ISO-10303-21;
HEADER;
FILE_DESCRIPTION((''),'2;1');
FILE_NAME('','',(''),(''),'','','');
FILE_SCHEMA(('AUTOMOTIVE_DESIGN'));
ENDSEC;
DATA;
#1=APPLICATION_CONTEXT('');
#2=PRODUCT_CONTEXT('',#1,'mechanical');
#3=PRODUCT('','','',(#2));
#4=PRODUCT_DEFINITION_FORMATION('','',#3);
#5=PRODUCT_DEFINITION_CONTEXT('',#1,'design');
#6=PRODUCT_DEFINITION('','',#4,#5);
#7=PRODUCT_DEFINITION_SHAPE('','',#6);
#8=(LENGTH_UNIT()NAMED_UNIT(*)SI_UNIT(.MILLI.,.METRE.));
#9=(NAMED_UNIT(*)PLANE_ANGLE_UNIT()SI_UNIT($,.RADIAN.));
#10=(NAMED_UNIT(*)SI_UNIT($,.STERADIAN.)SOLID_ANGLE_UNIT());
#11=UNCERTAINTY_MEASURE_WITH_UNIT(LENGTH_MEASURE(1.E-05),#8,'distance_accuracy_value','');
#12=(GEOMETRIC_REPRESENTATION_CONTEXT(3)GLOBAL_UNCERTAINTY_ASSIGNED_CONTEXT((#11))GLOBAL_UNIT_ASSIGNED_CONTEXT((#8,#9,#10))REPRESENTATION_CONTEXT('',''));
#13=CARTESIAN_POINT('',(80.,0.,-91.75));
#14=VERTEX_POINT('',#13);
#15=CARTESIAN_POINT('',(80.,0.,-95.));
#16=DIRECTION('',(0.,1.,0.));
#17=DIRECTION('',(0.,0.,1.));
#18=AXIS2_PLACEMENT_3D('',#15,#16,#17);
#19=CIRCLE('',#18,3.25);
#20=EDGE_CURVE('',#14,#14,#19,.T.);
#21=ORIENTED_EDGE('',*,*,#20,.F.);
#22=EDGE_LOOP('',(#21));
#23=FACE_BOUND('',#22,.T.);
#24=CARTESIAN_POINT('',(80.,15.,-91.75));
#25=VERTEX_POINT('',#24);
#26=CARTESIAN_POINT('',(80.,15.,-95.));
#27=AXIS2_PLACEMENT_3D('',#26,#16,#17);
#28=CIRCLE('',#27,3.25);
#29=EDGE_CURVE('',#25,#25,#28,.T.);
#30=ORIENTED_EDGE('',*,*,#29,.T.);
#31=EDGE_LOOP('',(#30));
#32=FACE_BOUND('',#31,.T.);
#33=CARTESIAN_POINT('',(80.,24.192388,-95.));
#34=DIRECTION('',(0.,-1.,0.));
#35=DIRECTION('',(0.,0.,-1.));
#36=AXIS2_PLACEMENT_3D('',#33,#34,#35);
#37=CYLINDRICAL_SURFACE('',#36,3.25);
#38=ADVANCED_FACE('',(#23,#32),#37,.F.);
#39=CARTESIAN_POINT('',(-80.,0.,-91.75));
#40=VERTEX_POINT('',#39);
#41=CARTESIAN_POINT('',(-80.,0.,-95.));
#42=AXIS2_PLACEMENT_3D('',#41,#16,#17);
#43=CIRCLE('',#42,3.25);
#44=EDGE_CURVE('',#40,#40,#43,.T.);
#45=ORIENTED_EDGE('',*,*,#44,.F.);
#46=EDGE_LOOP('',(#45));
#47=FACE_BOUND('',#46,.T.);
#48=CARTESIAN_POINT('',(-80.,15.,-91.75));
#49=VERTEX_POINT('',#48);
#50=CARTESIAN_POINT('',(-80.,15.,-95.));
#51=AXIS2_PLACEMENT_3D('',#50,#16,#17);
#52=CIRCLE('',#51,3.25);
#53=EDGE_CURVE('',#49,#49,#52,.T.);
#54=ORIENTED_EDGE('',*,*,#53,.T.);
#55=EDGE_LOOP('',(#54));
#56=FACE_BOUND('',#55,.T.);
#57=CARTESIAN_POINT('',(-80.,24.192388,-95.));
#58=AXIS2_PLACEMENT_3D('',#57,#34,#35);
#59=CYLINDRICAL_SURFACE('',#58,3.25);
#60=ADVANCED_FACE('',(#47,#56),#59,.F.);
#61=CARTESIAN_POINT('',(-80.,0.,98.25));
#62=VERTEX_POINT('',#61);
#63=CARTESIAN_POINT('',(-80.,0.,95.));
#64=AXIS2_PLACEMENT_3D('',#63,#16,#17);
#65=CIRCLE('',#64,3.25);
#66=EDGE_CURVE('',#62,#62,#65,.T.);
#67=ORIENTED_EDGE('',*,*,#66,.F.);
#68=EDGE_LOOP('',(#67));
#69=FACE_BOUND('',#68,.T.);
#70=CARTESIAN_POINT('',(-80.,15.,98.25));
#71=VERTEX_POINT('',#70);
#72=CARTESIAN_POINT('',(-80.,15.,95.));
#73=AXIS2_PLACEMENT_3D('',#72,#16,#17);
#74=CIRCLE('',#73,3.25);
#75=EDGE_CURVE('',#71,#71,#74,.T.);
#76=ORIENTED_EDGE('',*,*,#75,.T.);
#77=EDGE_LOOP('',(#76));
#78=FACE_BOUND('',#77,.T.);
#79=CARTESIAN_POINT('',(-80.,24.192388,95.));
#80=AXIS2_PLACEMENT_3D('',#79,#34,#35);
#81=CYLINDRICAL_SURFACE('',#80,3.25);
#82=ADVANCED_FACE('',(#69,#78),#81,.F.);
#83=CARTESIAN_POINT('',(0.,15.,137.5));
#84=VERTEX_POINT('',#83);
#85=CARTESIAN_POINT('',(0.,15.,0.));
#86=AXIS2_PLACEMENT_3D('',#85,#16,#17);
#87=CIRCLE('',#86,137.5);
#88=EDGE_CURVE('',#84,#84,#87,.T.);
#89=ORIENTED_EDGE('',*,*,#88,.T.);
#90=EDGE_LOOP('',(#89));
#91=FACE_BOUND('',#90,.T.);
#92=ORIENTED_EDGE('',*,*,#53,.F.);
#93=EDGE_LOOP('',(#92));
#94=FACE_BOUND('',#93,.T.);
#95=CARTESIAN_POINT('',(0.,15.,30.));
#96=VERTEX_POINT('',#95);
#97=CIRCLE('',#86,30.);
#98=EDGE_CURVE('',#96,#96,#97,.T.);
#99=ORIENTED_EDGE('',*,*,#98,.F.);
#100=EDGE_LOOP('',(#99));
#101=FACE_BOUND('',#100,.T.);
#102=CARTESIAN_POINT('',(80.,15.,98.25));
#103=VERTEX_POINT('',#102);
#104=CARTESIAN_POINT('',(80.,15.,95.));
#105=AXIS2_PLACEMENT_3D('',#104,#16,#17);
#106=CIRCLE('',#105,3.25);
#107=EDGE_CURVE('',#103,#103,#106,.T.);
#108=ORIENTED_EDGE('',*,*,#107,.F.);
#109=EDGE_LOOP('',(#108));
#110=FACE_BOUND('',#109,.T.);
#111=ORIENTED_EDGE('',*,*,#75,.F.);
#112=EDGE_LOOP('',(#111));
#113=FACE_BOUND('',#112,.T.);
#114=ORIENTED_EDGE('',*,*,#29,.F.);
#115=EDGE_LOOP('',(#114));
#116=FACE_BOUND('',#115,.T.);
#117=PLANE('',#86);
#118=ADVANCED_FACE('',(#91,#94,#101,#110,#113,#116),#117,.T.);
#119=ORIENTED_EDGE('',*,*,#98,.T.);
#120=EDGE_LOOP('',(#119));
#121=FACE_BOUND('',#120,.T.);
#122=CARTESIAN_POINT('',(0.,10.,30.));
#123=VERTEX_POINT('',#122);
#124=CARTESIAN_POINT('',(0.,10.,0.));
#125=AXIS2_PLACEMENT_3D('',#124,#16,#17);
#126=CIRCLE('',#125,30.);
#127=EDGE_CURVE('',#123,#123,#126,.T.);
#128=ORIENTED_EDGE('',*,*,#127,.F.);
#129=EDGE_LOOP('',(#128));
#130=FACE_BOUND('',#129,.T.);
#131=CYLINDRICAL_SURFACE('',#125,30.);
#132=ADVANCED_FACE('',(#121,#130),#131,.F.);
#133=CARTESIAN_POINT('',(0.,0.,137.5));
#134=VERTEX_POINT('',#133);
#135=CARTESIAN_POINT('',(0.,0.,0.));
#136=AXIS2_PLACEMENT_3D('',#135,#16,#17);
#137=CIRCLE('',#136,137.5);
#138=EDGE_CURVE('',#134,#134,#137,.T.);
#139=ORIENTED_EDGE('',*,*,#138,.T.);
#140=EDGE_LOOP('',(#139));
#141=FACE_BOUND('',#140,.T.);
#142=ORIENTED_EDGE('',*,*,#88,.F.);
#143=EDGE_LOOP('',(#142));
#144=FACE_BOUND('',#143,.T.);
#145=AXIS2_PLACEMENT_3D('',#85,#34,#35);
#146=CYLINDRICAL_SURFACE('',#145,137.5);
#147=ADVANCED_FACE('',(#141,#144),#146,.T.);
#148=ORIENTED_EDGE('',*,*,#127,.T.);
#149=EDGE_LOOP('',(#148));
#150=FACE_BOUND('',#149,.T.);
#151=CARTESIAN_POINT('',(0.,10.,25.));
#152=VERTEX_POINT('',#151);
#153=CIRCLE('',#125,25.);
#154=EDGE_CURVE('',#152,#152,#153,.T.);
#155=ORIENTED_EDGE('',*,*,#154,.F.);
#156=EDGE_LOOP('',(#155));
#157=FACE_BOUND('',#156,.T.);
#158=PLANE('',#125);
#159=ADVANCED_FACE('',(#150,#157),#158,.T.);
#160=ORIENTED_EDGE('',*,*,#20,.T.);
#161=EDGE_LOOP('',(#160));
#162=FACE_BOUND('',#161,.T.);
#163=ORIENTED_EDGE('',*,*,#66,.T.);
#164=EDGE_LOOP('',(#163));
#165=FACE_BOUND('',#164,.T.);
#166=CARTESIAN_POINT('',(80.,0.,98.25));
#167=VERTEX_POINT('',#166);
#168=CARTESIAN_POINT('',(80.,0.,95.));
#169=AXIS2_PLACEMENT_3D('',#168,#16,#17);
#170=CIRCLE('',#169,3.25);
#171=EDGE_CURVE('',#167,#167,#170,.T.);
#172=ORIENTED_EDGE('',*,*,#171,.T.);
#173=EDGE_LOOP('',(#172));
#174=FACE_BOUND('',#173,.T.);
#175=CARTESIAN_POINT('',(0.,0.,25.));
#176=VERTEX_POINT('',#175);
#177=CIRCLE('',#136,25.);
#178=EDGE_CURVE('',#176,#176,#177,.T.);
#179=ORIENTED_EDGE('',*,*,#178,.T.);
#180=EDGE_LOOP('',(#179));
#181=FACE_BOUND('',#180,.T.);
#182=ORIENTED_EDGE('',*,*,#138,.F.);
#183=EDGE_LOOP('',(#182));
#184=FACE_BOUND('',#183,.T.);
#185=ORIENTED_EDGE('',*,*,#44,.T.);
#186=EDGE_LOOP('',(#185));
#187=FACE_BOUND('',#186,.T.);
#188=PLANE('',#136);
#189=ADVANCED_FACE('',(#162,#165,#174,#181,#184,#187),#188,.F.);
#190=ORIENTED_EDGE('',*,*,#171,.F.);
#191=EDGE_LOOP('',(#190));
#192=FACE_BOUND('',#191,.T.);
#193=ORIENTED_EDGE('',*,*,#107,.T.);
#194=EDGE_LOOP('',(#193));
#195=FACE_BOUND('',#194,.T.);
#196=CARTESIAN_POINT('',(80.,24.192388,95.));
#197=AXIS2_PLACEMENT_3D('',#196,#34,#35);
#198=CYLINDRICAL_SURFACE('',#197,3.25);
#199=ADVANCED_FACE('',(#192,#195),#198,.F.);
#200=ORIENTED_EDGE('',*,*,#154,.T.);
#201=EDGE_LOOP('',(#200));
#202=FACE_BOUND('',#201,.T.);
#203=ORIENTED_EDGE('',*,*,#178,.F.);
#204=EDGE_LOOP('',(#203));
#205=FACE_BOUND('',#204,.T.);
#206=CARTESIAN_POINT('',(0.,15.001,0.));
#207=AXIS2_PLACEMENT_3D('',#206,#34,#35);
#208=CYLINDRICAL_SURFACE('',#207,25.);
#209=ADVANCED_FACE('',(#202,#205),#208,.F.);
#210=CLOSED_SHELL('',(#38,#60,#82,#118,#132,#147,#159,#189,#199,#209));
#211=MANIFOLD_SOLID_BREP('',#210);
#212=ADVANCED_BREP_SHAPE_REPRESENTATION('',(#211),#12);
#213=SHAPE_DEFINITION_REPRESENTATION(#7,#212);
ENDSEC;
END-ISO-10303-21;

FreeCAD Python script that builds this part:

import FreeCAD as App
import Part
import Sketcher
Q = App.Units.Quantity

doc = App.newDocument("Part")
body = doc.addObject("PartDesign::Body", "Body")

# Sketch on XZ plane
sketch1 = doc.addObject("Sketcher::SketchObject", "Sketch")
body.addObject(sketch1)
sketch1.AttachmentSupport = (doc.XZ_Plane, [""])
sketch1.MapMode = "FlatFace"
sketch1.addGeometry(Part.Circle(App.Vector(0, 0, 0), App.Vector(0, 0, 1), 137.5), False)
sketch1.addConstraint(Sketcher.Constraint("Coincident", 0, 3, -1, 1))
sketch1.addConstraint(Sketcher.Constraint("Diameter", 0, Q("275 mm")))
pad1 = doc.addObject("PartDesign::Pad", "Pad")
body.addObject(pad1)
pad1.Profile = sketch1
pad1.Length = 15
pad1.Reversed = True

# Sketch on XZ plane
sketch2 = doc.addObject("Sketcher::SketchObject", "Sketch001")
body.addObject(sketch2)
sketch2.AttachmentSupport = (doc.XZ_Plane, [""])
sketch2.MapMode = "FlatFace"
sketch2.addGeometry(Part.Circle(App.Vector(-80, -95, 0), App.Vector(0, 0, 1), 3.25), False)
sketch2.addGeometry(Part.Circle(App.Vector(-80, 95, 0), App.Vector(0, 0, 1), 3.25), False)
sketch2.addGeometry(Part.Circle(App.Vector(80, 95, 0), App.Vector(0, 0, 1), 3.25), False)
sketch2.addGeometry(Part.Circle(App.Vector(80, -95, 0), App.Vector(0, 0, 1), 3.25), False)
sketch2.addConstraint(Sketcher.Constraint("Equal", 0, 1))
sketch2.addConstraint(Sketcher.Constraint("Equal", 1, 2))
sketch2.addConstraint(Sketcher.Constraint("Equal", 2, 3))
sketch2.addConstraint(Sketcher.Constraint("Symmetric", 0, 3, 2, 3, -1, 1))
sketch2.addConstraint(Sketcher.Constraint("Symmetric", 1, 3, 3, 3, -1, 1))
sketch2.addConstraint(Sketcher.Constraint("Symmetric", 1, 3, 2, 3, -2))
sketch2.addConstraint(Sketcher.Constraint("Diameter", 0, Q("6.5 mm")))
sketch2.addConstraint(Sketcher.Constraint("DistanceX", 0, 3, -1, 1, Q("80 mm")))
sketch2.addConstraint(Sketcher.Constraint("DistanceY", 0, 3, -1, 1, Q("95 mm")))
pocket1 = doc.addObject("PartDesign::Pocket", "Pocket")
body.addObject(pocket1)
pocket1.Profile = sketch2
pocket1.Length = 15

# Sketch on XZ plane
sketch3 = doc.addObject("Sketcher::SketchObject", "Sketch002")
body.addObject(sketch3)
sketch3.AttachmentSupport = (doc.XZ_Plane, [""])
sketch3.MapMode = "FlatFace"
sketch3.addGeometry(Part.Circle(App.Vector(0, 0, 0), App.Vector(0, 0, 1), 25), False)
sketch3.addConstraint(Sketcher.Constraint("Coincident", 0, 3, -1, 1))
sketch3.addConstraint(Sketcher.Constraint("Diameter", 0, Q("50 mm")))
pocket2 = doc.addObject("PartDesign::Pocket", "Pocket001")
body.addObject(pocket2)
pocket2.Profile = sketch3
pocket2.Length = 15

# Sketch on XZ plane
sketch4 = doc.addObject("Sketcher::SketchObject", "Sketch003")
body.addObject(sketch4)
sketch4.AttachmentSupport = (doc.XZ_Plane, [""])
sketch4.MapMode = "FlatFace"
sketch4.AttachmentOffset = App.Placement(App.Vector(0, 0, -15), App.Rotation())
sketch4.addGeometry(Part.Circle(App.Vector(0, 0, 0), App.Vector(0, 0, 1), 30), False)
sketch4.addConstraint(Sketcher.Constraint("Coincident", 0, 3, -1, 1))
sketch4.addConstraint(Sketcher.Constraint("Diameter", 0, Q("60 mm")))
pocket3 = doc.addObject("PartDesign::Pocket", "Pocket002")
body.addObject(pocket3)
pocket3.Profile = sketch4
pocket3.Length = 5
pocket3.Reversed = True

doc.recompute()
